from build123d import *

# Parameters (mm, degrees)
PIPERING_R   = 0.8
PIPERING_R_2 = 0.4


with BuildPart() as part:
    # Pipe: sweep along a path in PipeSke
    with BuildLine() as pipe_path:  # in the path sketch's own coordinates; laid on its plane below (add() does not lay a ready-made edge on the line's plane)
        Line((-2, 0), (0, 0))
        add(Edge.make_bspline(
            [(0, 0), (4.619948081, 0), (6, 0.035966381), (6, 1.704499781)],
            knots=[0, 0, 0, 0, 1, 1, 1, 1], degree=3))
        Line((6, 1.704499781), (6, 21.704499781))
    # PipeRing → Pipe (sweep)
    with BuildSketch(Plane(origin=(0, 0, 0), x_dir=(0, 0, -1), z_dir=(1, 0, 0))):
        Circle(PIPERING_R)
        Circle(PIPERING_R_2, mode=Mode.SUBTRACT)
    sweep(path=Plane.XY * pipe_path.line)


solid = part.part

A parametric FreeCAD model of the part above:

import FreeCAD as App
import Part
import Sketcher

doc = App.newDocument("Part")
body = doc.addObject("PartDesign::Body", "Body")

# Sketch on YZ plane
sketch1 = body.newObject("Sketcher::SketchObject", "Sketch")
sketch1.AttachmentSupport = (doc.getObject("YZ_Plane"), [""])
sketch1.MapMode = "FlatFace"
sketch1.addGeometry(Part.Circle(App.Vector(0, 0, 0), App.Vector(0, 0, 1), 0.8), False)
sketch1.addGeometry(Part.Circle(App.Vector(0, 0, 0), App.Vector(0, 0, 1), 0.4), False)
sketch1.addConstraint(Sketcher.Constraint("Coincident", 0, 3, -1, 1))
sketch1.addConstraint(Sketcher.Constraint("Coincident", 1, 3, -1, 1))
sketch1.addConstraint(Sketcher.Constraint("Diameter", 0, 1.6))
sketch1.addConstraint(Sketcher.Constraint("Diameter", 1, 0.8))

# Sketch on XY plane
sketch2 = body.newObject("Sketcher::SketchObject", "Sketch001")
sketch2.AttachmentSupport = (doc.getObject("XY_Plane"), [""])
sketch2.MapMode = "FlatFace"
sketch2.addGeometry(Part.LineSegment(App.Vector(-2, 0, 0), App.Vector(0, 0, 0)), False)
sketch2.addGeometry(Part.BSplineCurve([App.Vector(0, 0, 0), App.Vector(4.619948, 0, 0), App.Vector(6, 0.035966, 0), App.Vector(6, 1.7045, 0)], [4, 4], [0, 1], False, 3, [1, 1, 1, 1], False), False)
sketch2.addGeometry(Part.LineSegment(App.Vector(6, 1.7045, 0), App.Vector(6, 21.7045, 0)), False)
sketch2.addConstraint(Sketcher.Constraint("Block", 1))
sketch2.addConstraint(Sketcher.Constraint("Coincident", 0, 2, 1, 1))
sketch2.addConstraint(Sketcher.Constraint("Coincident", 1, 2, 2, 1))
sketch2.addConstraint(Sketcher.Constraint("Horizontal", 0))
sketch2.addConstraint(Sketcher.Constraint("Vertical", 2))
sketch2.addConstraint(Sketcher.Constraint("DistanceX", 0, 1, 0, 2, 2.0))
sketch2.addConstraint(Sketcher.Constraint("DistanceY", 2, 1, 2, 2, 20.0))
doc.recompute()

additivepipe = body.newObject("PartDesign::AdditivePipe", "AdditivePipe")
additivepipe.Profile = sketch1
additivepipe.Spine = (sketch2, ["Edge1", "Edge2", "Edge3"])

doc.recompute()
